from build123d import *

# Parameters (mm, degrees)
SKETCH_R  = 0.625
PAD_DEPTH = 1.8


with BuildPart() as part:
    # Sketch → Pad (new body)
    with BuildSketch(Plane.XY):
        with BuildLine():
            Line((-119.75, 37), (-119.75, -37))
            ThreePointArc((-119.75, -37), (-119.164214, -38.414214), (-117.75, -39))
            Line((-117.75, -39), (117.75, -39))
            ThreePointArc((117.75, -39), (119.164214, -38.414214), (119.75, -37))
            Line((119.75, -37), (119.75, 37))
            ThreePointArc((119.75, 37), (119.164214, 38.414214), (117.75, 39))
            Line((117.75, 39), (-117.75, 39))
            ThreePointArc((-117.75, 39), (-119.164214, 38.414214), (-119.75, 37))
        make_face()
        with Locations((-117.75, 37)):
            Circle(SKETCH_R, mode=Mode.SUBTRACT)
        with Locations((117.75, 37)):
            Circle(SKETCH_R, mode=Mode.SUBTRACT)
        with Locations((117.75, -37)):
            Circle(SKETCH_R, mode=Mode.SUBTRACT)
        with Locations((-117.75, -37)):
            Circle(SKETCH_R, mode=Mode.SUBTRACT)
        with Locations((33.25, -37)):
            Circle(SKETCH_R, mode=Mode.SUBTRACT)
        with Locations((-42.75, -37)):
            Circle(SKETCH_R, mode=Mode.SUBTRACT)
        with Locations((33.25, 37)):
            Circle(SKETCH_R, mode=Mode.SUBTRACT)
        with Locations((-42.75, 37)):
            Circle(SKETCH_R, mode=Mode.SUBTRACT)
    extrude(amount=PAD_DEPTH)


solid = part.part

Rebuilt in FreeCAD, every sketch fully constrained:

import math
import FreeCAD as App
import Part
import Sketcher
from FreeCAD import Vector
Q = App.Units.Quantity

doc = App.newDocument("Part")
body = doc.addObject("PartDesign::Body", "Body")

# Sketch on XY plane
sketch1 = body.newObject("Sketcher::SketchObject", "Sketch")
sketch1.AttachmentSupport = (doc.getObject("XY_Plane"), [""])
sketch1.MapMode = "FlatFace"
sketch1.addGeometry(Part.LineSegment(Vector(-119.75, 37, 0), Vector(-119.75, -37, 0)), False)
sketch1.addGeometry(Part.ArcOfCircle(Part.Circle(Vector(-117.750001, -37.000001, 0), Vector(0, 0, 1), 1.999999), math.radians(179.999957), math.radians(270.000043)), False)
sketch1.addGeometry(Part.LineSegment(Vector(-117.75, -39, 0), Vector(117.75, -39, 0)), False)
sketch1.addGeometry(Part.ArcOfCircle(Part.Circle(Vector(117.750001, -37.000001, 0), Vector(0, 0, 1), 1.999999), math.radians(-90.000043), math.radians(0.000043)), False)
sketch1.addGeometry(Part.LineSegment(Vector(119.75, -37, 0), Vector(119.75, 37, 0)), False)
sketch1.addGeometry(Part.ArcOfCircle(Part.Circle(Vector(117.750001, 37.000001, 0), Vector(0, 0, 1), 1.999999), math.radians(-0.000043), math.radians(90.000043)), False)
sketch1.addGeometry(Part.LineSegment(Vector(117.75, 39, 0), Vector(-117.75, 39, 0)), False)
sketch1.addGeometry(Part.ArcOfCircle(Part.Circle(Vector(-117.750001, 37.000001, 0), Vector(0, 0, 1), 1.999999), math.radians(89.999957), math.radians(180.000043)), False)
sketch1.addGeometry(Part.Circle(Vector(-117.75, -37, 0), Vector(0, 0, 1), 0.625), False)
sketch1.addGeometry(Part.Circle(Vector(-42.75, -37, 0), Vector(0, 0, 1), 0.625), False)
sketch1.addGeometry(Part.Circle(Vector(33.25, -37, 0), Vector(0, 0, 1), 0.625), False)
sketch1.addGeometry(Part.Circle(Vector(117.75, -37, 0), Vector(0, 0, 1), 0.625), False)
sketch1.addGeometry(Part.Circle(Vector(-117.75, 37, 0), Vector(0, 0, 1), 0.625), False)
sketch1.addGeometry(Part.Circle(Vector(-42.75, 37, 0), Vector(0, 0, 1), 0.625), False)
sketch1.addGeometry(Part.Circle(Vector(33.25, 37, 0), Vector(0, 0, 1), 0.625), False)
sketch1.addGeometry(Part.Circle(Vector(117.75, 37, 0), Vector(0, 0, 1), 0.625), False)
sketch1.addConstraint(Sketcher.Constraint("Tangent", 0, 2, 1, 1))
sketch1.addConstraint(Sketcher.Constraint("Tangent", 1, 2, 2, 1))
sketch1.addConstraint(Sketcher.Constraint("Tangent", 2, 2, 3, 1))
sketch1.addConstraint(Sketcher.Constraint("Tangent", 3, 2, 4, 1))
sketch1.addConstraint(Sketcher.Constraint("Tangent", 4, 2, 5, 1))
sketch1.addConstraint(Sketcher.Constraint("Tangent", 5, 2, 6, 1))
sketch1.addConstraint(Sketcher.Constraint("Tangent", 6, 2, 7, 1))
sketch1.addConstraint(Sketcher.Constraint("Tangent", 7, 2, 0, 1))
sketch1.addConstraint(Sketcher.Constraint("Vertical", 0))
sketch1.addConstraint(Sketcher.Constraint("Horizontal", 2))
sketch1.addConstraint(Sketcher.Constraint("Vertical", 4))
sketch1.addConstraint(Sketcher.Constraint("Horizontal", 6))
sketch1.addConstraint(Sketcher.Constraint("Coincident", 8, 3, 1, 3))
sketch1.addConstraint(Sketcher.Constraint("Coincident", 11, 3, 3, 3))
sketch1.addConstraint(Sketcher.Constraint("Coincident", 12, 3, 7, 3))
sketch1.addConstraint(Sketcher.Constraint("Coincident", 15, 3, 5, 3))
sketch1.addConstraint(Sketcher.Constraint("Equal", 1, 3))
sketch1.addConstraint(Sketcher.Constraint("Equal", 3, 5))
sketch1.addConstraint(Sketcher.Constraint("Equal", 5, 7))
sketch1.addConstraint(Sketcher.Constraint("Equal", 8, 9))
sketch1.addConstraint(Sketcher.Constraint("Equal", 9, 10))
sketch1.addConstraint(Sketcher.Constraint("Equal", 10, 11))
sketch1.addConstraint(Sketcher.Constraint("Equal", 11, 12))
sketch1.addConstraint(Sketcher.Constraint("Equal", 12, 13))
sketch1.addConstraint(Sketcher.Constraint("Equal", 13, 14))
sketch1.addConstraint(Sketcher.Constraint("Equal", 14, 15))
sketch1.addConstraint(Sketcher.Constraint("Symmetric", 1, 3, 5, 3, -1, 1))
sketch1.addConstraint(Sketcher.Constraint("Symmetric", 9, 3, 13, 3, -1))
sketch1.addConstraint(Sketcher.Constraint("Symmetric", 10, 3, 14, 3, -1))
sketch1.addConstraint(Sketcher.Constraint("Horizontal", 8, 3, 9, 3))
sketch1.addConstraint(Sketcher.Constraint("Horizontal", 9, 3, 10, 3))
sketch1.addConstraint(Sketcher.Constraint("Radius", 1, Q("1.999999 mm")))
sketch1.addConstraint(Sketcher.Constraint("Diameter", 8, Q("1.25 mm")))
sketch1.addConstraint(Sketcher.Constraint("DistanceY", 0, 2, 0, 1, Q("74 mm")))
sketch1.addConstraint(Sketcher.Constraint("DistanceX", 2, 1, 2, 2, Q("235.5 mm")))
sketch1.addConstraint(Sketcher.Constraint("DistanceX", 8, 3, 9, 3, Q("75 mm")))
sketch1.addConstraint(Sketcher.Constraint("DistanceX", 9, 3, 10, 3, Q("76 mm")))
pad1 = body.newObject("PartDesign::Pad", "Pad")
pad1.Profile = sketch1
pad1.Length = 1.8

doc.recompute()
